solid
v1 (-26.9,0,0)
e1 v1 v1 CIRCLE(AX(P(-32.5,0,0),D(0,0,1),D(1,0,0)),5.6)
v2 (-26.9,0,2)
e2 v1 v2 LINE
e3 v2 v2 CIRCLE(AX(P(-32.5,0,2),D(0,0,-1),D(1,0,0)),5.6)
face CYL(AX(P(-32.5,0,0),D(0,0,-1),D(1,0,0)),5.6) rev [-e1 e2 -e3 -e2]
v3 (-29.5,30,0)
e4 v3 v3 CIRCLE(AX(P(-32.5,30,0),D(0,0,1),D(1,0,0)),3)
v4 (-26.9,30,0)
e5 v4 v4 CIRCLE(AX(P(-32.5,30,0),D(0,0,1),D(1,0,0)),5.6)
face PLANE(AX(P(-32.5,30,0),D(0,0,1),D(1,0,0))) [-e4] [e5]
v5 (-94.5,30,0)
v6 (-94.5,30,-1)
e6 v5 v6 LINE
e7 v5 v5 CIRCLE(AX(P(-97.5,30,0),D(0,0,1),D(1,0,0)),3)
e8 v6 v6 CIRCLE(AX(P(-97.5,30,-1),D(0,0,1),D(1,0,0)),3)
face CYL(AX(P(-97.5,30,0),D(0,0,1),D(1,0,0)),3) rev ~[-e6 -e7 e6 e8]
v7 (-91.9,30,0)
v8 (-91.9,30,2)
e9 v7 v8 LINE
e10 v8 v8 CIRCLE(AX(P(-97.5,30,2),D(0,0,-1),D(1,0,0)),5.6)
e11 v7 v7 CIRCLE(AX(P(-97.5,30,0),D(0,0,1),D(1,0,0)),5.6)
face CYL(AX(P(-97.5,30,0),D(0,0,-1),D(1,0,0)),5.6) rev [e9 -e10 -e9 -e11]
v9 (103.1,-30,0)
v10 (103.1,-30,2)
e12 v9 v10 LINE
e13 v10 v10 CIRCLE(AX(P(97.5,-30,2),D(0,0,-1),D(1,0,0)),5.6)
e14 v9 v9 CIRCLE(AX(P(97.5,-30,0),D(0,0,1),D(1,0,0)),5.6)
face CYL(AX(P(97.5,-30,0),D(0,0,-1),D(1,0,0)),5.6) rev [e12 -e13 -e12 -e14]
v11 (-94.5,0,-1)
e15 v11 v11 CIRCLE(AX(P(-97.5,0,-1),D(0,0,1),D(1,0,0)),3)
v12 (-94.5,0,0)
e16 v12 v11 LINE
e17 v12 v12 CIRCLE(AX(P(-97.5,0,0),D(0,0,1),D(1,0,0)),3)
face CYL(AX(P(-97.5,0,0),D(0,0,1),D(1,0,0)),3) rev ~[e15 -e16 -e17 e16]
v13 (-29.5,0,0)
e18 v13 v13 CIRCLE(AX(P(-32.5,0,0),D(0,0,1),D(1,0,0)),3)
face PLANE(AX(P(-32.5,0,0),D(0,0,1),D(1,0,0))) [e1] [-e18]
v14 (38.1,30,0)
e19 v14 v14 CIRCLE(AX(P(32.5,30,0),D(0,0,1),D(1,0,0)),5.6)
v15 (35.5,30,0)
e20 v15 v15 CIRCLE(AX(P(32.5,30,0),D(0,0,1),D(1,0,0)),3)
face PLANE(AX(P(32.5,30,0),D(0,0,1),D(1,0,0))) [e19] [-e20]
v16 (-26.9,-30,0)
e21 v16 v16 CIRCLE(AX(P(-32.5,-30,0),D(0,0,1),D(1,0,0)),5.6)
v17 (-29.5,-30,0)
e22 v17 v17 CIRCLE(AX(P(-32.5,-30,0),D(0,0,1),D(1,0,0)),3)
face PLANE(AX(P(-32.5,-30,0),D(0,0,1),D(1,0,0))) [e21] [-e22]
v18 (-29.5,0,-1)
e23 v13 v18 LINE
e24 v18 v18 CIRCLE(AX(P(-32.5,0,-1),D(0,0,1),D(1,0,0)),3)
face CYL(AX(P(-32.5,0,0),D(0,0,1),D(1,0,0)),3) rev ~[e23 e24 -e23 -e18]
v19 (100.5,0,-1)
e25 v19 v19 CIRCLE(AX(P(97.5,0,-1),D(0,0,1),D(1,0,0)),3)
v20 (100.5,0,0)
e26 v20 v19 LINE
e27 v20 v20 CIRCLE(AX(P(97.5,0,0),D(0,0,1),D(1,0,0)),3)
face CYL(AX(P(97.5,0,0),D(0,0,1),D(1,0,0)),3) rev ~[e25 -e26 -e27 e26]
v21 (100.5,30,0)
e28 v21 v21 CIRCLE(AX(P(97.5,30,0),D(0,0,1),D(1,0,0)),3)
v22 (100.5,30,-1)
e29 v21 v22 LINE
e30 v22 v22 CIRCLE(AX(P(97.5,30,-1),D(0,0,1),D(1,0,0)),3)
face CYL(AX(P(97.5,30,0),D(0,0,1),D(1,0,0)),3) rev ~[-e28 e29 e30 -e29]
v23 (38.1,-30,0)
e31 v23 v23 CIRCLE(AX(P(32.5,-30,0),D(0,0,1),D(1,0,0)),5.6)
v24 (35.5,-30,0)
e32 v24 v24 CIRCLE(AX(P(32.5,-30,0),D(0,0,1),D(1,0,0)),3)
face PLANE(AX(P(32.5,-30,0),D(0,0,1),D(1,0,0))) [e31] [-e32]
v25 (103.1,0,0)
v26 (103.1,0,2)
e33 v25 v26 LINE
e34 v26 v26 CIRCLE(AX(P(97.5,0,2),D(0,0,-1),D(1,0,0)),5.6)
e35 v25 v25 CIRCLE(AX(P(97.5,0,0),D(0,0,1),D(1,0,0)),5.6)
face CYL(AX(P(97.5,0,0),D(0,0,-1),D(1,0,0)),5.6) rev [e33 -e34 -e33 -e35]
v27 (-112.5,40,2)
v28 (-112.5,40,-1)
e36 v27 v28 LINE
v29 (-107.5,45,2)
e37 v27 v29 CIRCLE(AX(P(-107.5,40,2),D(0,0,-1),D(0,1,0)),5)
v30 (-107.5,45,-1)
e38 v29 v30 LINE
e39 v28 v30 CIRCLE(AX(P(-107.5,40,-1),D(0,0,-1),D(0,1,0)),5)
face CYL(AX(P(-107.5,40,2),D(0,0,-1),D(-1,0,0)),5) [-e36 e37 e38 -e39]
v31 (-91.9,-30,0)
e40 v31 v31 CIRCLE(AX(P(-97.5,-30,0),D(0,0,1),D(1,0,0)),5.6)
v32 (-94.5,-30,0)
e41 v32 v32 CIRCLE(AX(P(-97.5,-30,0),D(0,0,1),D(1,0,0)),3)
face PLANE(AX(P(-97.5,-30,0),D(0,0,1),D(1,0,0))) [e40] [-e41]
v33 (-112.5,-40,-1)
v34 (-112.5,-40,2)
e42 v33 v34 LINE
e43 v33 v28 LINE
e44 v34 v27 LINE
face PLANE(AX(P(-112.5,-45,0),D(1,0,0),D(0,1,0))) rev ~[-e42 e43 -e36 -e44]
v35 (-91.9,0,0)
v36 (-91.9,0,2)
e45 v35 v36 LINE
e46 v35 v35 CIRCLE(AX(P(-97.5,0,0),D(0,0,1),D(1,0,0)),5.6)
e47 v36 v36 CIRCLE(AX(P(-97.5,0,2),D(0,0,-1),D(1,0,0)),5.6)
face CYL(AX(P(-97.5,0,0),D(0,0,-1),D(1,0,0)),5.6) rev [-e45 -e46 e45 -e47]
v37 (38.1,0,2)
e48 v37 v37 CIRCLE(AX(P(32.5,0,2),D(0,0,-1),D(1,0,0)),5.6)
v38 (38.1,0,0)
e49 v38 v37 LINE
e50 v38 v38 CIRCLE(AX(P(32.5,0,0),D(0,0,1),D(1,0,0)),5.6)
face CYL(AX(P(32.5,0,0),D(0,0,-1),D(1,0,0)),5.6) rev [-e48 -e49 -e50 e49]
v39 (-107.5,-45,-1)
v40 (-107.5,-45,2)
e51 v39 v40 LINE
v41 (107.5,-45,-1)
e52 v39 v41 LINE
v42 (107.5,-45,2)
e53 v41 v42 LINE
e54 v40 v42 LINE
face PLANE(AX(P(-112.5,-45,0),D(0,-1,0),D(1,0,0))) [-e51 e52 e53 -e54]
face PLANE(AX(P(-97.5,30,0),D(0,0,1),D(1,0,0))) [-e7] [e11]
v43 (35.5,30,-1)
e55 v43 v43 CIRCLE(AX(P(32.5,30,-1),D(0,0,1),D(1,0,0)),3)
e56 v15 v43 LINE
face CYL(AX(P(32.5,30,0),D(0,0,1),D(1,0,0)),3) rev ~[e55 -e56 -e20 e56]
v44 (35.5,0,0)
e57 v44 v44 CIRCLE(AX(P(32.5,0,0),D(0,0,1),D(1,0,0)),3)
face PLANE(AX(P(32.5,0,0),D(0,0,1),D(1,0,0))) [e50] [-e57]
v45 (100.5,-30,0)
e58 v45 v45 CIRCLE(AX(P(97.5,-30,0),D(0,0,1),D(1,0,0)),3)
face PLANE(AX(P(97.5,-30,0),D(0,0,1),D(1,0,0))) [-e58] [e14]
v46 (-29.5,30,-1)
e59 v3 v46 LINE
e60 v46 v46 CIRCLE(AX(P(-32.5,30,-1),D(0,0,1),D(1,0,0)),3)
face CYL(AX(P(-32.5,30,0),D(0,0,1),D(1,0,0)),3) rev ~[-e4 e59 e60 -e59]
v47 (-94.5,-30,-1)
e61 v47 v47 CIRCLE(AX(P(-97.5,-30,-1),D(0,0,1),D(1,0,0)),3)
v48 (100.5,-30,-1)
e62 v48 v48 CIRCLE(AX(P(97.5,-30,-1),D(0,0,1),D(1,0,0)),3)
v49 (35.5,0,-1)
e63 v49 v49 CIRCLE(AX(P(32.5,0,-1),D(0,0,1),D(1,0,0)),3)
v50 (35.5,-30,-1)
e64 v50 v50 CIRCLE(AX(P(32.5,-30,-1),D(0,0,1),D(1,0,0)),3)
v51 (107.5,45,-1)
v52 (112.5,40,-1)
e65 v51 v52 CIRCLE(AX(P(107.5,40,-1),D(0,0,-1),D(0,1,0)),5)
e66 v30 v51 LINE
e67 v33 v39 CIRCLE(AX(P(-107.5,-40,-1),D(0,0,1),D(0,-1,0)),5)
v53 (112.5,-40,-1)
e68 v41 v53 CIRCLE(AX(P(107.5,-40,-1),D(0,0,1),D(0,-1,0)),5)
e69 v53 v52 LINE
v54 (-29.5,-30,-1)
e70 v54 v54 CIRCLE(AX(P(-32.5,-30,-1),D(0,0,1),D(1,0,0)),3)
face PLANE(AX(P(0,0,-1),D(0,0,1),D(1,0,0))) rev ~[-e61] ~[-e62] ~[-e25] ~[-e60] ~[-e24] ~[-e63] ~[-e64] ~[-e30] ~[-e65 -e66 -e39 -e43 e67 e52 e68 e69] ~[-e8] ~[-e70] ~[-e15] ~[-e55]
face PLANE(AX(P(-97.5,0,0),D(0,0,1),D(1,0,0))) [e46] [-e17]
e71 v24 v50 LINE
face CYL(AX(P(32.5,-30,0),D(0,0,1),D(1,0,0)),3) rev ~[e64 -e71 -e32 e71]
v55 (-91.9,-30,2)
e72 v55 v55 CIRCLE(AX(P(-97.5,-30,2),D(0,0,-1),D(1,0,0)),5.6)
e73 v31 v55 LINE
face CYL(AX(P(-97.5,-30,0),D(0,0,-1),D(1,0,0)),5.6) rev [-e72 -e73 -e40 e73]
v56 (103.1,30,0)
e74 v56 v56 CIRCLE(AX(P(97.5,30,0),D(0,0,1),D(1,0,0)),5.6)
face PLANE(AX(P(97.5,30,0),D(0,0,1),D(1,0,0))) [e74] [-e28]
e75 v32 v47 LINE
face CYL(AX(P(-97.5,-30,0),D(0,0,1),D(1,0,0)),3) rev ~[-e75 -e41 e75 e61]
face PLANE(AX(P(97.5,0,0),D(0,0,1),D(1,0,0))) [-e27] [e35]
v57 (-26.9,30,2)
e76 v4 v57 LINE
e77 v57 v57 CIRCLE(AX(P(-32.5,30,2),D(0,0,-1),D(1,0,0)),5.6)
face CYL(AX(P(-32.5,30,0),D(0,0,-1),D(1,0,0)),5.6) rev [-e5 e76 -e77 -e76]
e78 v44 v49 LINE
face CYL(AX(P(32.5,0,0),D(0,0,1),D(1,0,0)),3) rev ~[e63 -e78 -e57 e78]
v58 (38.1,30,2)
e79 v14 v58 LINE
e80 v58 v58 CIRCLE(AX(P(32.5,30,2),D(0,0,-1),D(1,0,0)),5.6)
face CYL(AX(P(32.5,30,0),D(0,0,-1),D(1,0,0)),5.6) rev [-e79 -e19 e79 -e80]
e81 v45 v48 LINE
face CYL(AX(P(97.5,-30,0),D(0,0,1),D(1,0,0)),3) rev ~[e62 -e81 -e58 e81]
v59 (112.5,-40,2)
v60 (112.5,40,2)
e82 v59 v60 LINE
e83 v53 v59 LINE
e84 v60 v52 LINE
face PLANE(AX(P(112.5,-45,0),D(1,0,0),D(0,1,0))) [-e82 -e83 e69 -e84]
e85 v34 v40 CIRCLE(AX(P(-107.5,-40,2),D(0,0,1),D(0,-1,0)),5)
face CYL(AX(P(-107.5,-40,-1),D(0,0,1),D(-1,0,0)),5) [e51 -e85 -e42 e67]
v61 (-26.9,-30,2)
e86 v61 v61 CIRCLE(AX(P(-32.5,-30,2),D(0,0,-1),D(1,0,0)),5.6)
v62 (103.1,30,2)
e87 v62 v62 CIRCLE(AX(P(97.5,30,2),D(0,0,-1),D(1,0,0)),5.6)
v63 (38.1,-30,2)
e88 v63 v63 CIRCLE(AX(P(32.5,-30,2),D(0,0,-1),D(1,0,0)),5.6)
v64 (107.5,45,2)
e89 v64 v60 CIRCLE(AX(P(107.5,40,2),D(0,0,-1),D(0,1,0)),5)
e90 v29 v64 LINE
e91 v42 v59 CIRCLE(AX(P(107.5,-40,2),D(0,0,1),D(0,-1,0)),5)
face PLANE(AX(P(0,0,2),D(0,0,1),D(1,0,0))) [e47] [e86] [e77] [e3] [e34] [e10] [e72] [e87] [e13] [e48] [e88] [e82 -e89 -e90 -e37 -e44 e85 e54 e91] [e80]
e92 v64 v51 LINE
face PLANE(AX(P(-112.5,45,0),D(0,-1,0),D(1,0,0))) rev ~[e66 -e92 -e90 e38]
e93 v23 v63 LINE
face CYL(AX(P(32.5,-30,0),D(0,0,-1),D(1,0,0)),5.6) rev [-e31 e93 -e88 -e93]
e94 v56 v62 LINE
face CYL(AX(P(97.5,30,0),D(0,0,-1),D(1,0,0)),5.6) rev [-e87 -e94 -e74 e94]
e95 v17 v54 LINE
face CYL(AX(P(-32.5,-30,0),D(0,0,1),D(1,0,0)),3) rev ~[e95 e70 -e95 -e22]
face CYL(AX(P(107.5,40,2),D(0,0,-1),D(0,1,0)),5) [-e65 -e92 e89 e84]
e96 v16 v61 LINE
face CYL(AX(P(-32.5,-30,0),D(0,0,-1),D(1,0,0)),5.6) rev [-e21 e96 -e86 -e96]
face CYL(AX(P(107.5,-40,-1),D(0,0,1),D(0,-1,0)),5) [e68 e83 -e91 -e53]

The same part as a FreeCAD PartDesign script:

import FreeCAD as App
import Part
import Sketcher

V = App.Vector


def edges_at(feature, points):
    """Names of the edges that pass closest to the given points."""
    edges = feature.Shape.Edges
    near = lambda p: min(range(len(edges)), key=lambda i: edges[i].distToShape(Part.Vertex(*p))[0])
    return sorted({f"Edge{near(p) + 1}" for p in points})


def add_polygon(sketch, points):
    """Adds a closed chain of lines whose ends are joined by coincident constraints."""
    first, n = sketch.GeometryCount, len(points)
    for a, b in zip(points, points[1:] + points[:1]):
        sketch.addGeometry(Part.LineSegment(App.Vector(*a, 0), App.Vector(*b, 0)), False)
    for i in range(n):
        sketch.addConstraint(Sketcher.Constraint("Coincident", first + i, 2, first + (i + 1) % n, 1))

doc = App.newDocument("Part")
body = doc.addObject("PartDesign::Body", "Body")

# Sketch on XY plane
sketch1 = body.newObject("Sketcher::SketchObject", "Sketch")
sketch1.AttachmentSupport = (doc.getObject("XY_Plane"), [""])
sketch1.MapMode = "FlatFace"
add_polygon(sketch1, [(-112, 45), (-112, -45), (112, -45), (112, 45)])  # lines 0-3
sketch1.addConstraint(Sketcher.Constraint("Vertical", 0))
sketch1.addConstraint(Sketcher.Constraint("Horizontal", 1))
sketch1.addConstraint(Sketcher.Constraint("Vertical", 2))
sketch1.addConstraint(Sketcher.Constraint("Horizontal", 3))
sketch1.addConstraint(Sketcher.Constraint("Symmetric", 0, 2, 2, 2, -1, 1))
sketch1.addConstraint(Sketcher.Constraint("DistanceX", 1, 1, 1, 2, 225.0))
sketch1.addConstraint(Sketcher.Constraint("DistanceY", 0, 2, 0, 1, 90.0))
pad1 = body.newObject("PartDesign::Pad", "Pad")
pad1.Profile = sketch1
pad1.Type = "TwoLengths"
pad1.Length = 2
pad1.Length2 = 1

# Sketch on XY plane
sketch2 = body.newObject("Sketcher::SketchObject", "Sketch001")
sketch2.AttachmentSupport = (doc.getObject("XY_Plane"), [""])
sketch2.MapMode = "FlatFace"
sketch2.addGeometry(Part.Circle(V(-98, 30, 0), V(0, 0, 1), 6), False)
sketch2.addGeometry(Part.Circle(V(-32, 30, 0), V(0, 0, 1), 6), False)
sketch2.addGeometry(Part.Circle(V(32, 30, 0), V(0, 0, 1), 6), False)
sketch2.addGeometry(Part.Circle(V(98, 30, 0), V(0, 0, 1), 6), False)
sketch2.addGeometry(Part.Circle(V(-98, 0, 0), V(0, 0, 1), 6), False)
sketch2.addGeometry(Part.Circle(V(-32, 0, 0), V(0, 0, 1), 6), False)
sketch2.addGeometry(Part.Circle(V(32, 0, 0), V(0, 0, 1), 6), False)
sketch2.addGeometry(Part.Circle(V(98, 0, 0), V(0, 0, 1), 6), False)
sketch2.addGeometry(Part.Circle(V(-98, -30, 0), V(0, 0, 1), 6), False)
sketch2.addGeometry(Part.Circle(V(-32, -30, 0), V(0, 0, 1), 6), False)
sketch2.addGeometry(Part.Circle(V(32, -30, 0), V(0, 0, 1), 6), False)
sketch2.addGeometry(Part.Circle(V(98, -30, 0), V(0, 0, 1), 6), False)
sketch2.addConstraint(Sketcher.Constraint("Equal", 0, 1))
sketch2.addConstraint(Sketcher.Constraint("Equal", 1, 2))
sketch2.addConstraint(Sketcher.Constraint("Equal", 2, 3))
sketch2.addConstraint(Sketcher.Constraint("Equal", 3, 4))
sketch2.addConstraint(Sketcher.Constraint("Equal", 4, 5))
sketch2.addConstraint(Sketcher.Constraint("Equal", 5, 6))
sketch2.addConstraint(Sketcher.Constraint("Equal", 6, 7))
sketch2.addConstraint(Sketcher.Constraint("Equal", 7, 8))
sketch2.addConstraint(Sketcher.Constraint("Equal", 8, 9))
sketch2.addConstraint(Sketcher.Constraint("Equal", 9, 10))
sketch2.addConstraint(Sketcher.Constraint("Equal", 10, 11))
sketch2.addConstraint(Sketcher.Constraint("Symmetric", 5, 3, 6, 3, -1, 1))
sketch2.addConstraint(Sketcher.Constraint("Symmetric", 4, 3, 7, 3, -1, 1))
sketch2.addConstraint(Sketcher.Constraint("Symmetric", 3, 3, 8, 3, -1, 1))
sketch2.addConstraint(Sketcher.Constraint("Symmetric", 2, 3, 9, 3, -1, 1))
sketch2.addConstraint(Sketcher.Constraint("Symmetric", 1, 3, 10, 3, -1, 1))
sketch2.addConstraint(Sketcher.Constraint("Symmetric", 0, 3, 11, 3, -1, 1))
sketch2.addConstraint(Sketcher.Constraint("Symmetric", 1, 3, 2, 3, -2))
sketch2.addConstraint(Sketcher.Constraint("Symmetric", 0, 3, 3, 3, -2))
sketch2.addConstraint(Sketcher.Constraint("PointOnObject", 4, 3, -1))
sketch2.addConstraint(Sketcher.Constraint("PointOnObject", 5, 3, -1))
sketch2.addConstraint(Sketcher.Constraint("Horizontal", 0, 3, 1, 3))
sketch2.addConstraint(Sketcher.Constraint("Vertical", 0, 3, 4, 3))
sketch2.addConstraint(Sketcher.Constraint("Vertical", 1, 3, 5, 3))
sketch2.addConstraint(Sketcher.Constraint("Diameter", 0, 11.2))
sketch2.addConstraint(Sketcher.Constraint("DistanceY", -1, 1, 0, 3, 30.0))
sketch2.addConstraint(Sketcher.Constraint("DistanceX", 0, 3, 1, 3, 65.0))
sketch2.addConstraint(Sketcher.Constraint("DistanceX", 1, 3, 2, 3, 65.0))
pocket1 = body.newObject("PartDesign::Pocket", "Pocket")
pocket1.Profile = sketch2
pocket1.Type = "ThroughAll"
pocket1.Reversed = True

# Sketch on XY plane
sketch3 = body.newObject("Sketcher::SketchObject", "Sketch002")
sketch3.AttachmentSupport = (doc.getObject("XY_Plane"), [""])
sketch3.MapMode = "FlatFace"
sketch3.addGeometry(Part.Circle(V(-97.5, 30, 0), V(0, 0, 1), 3), False)
sketch3.addGeometry(Part.Circle(V(-32.5, 30, 0), V(0, 0, 1), 3), False)
sketch3.addGeometry(Part.Circle(V(32.5, 30, 0), V(0, 0, 1), 3), False)
sketch3.addGeometry(Part.Circle(V(97.5, 30, 0), V(0, 0, 1), 3), False)
sketch3.addGeometry(Part.Circle(V(-97.5, 0, 0), V(0, 0, 1), 3), False)
sketch3.addGeometry(Part.Circle(V(-32.5, 0, 0), V(0, 0, 1), 3), False)
sketch3.addGeometry(Part.Circle(V(32.5, 0, 0), V(0, 0, 1), 3), False)
sketch3.addGeometry(Part.Circle(V(97.5, 0, 0), V(0, 0, 1), 3), False)
sketch3.addGeometry(Part.Circle(V(-97.5, -30, 0), V(0, 0, 1), 3), False)
sketch3.addGeometry(Part.Circle(V(-32.5, -30, 0), V(0, 0, 1), 3), False)
sketch3.addGeometry(Part.Circle(V(32.5, -30, 0), V(0, 0, 1), 3), False)
sketch3.addGeometry(Part.Circle(V(97.5, -30, 0), V(0, 0, 1), 3), False)
sketch3.addConstraint(Sketcher.Constraint("Equal", 0, 1))
sketch3.addConstraint(Sketcher.Constraint("Equal", 1, 2))
sketch3.addConstraint(Sketcher.Constraint("Equal", 2, 3))
sketch3.addConstraint(Sketcher.Constraint("Equal", 3, 4))
sketch3.addConstraint(Sketcher.Constraint("Equal", 4, 5))
sketch3.addConstraint(Sketcher.Constraint("Equal", 5, 6))
sketch3.addConstraint(Sketcher.Constraint("Equal", 6, 7))
sketch3.addConstraint(Sketcher.Constraint("Equal", 7, 8))
sketch3.addConstraint(Sketcher.Constraint("Equal", 8, 9))
sketch3.addConstraint(Sketcher.Constraint("Equal", 9, 10))
sketch3.addConstraint(Sketcher.Constraint("Equal", 10, 11))
sketch3.addConstraint(Sketcher.Constraint("Symmetric", 5, 3, 6, 3, -1, 1))
sketch3.addConstraint(Sketcher.Constraint("Symmetric", 4, 3, 7, 3, -1, 1))
sketch3.addConstraint(Sketcher.Constraint("Symmetric", 3, 3, 8, 3, -1, 1))
sketch3.addConstraint(Sketcher.Constraint("Symmetric", 2, 3, 9, 3, -1, 1))
sketch3.addConstraint(Sketcher.Constraint("Symmetric", 1, 3, 10, 3, -1, 1))
sketch3.addConstraint(Sketcher.Constraint("Symmetric", 0, 3, 11, 3, -1, 1))
sketch3.addConstraint(Sketcher.Constraint("Symmetric", 1, 3, 2, 3, -2))
sketch3.addConstraint(Sketcher.Constraint("Symmetric", 0, 3, 3, 3, -2))
sketch3.addConstraint(Sketcher.Constraint("PointOnObject", 4, 3, -1))
sketch3.addConstraint(Sketcher.Constraint("PointOnObject", 5, 3, -1))
sketch3.addConstraint(Sketcher.Constraint("Horizontal", 0, 3, 1, 3))
sketch3.addConstraint(Sketcher.Constraint("Vertical", 0, 3, 4, 3))
sketch3.addConstraint(Sketcher.Constraint("Vertical", 1, 3, 5, 3))
sketch3.addConstraint(Sketcher.Constraint("Diameter", 0, 6.0))
sketch3.addConstraint(Sketcher.Constraint("DistanceY", -1, 1, 0, 3, 30.0))
sketch3.addConstraint(Sketcher.Constraint("DistanceX", 0, 3, 1, 3, 65.0))
sketch3.addConstraint(Sketcher.Constraint("DistanceX", 1, 3, 2, 3, 65.0))
pocket2 = body.newObject("PartDesign::Pocket", "Pocket001")
pocket2.Profile = sketch3
pocket2.Type = "ThroughAll"
doc.recompute()

fillet = body.newObject("PartDesign::Fillet", "Fillet")
fillet.Base = (pocket2, edges_at(pocket2, [
    (-112.5, -45, 0.5),
    (-112.5, 45, 0.5),
    (112.5, -45, 0.5),
    (112.5, 45, 0.5),
]))
fillet.Radius = 5

doc.recompute()
